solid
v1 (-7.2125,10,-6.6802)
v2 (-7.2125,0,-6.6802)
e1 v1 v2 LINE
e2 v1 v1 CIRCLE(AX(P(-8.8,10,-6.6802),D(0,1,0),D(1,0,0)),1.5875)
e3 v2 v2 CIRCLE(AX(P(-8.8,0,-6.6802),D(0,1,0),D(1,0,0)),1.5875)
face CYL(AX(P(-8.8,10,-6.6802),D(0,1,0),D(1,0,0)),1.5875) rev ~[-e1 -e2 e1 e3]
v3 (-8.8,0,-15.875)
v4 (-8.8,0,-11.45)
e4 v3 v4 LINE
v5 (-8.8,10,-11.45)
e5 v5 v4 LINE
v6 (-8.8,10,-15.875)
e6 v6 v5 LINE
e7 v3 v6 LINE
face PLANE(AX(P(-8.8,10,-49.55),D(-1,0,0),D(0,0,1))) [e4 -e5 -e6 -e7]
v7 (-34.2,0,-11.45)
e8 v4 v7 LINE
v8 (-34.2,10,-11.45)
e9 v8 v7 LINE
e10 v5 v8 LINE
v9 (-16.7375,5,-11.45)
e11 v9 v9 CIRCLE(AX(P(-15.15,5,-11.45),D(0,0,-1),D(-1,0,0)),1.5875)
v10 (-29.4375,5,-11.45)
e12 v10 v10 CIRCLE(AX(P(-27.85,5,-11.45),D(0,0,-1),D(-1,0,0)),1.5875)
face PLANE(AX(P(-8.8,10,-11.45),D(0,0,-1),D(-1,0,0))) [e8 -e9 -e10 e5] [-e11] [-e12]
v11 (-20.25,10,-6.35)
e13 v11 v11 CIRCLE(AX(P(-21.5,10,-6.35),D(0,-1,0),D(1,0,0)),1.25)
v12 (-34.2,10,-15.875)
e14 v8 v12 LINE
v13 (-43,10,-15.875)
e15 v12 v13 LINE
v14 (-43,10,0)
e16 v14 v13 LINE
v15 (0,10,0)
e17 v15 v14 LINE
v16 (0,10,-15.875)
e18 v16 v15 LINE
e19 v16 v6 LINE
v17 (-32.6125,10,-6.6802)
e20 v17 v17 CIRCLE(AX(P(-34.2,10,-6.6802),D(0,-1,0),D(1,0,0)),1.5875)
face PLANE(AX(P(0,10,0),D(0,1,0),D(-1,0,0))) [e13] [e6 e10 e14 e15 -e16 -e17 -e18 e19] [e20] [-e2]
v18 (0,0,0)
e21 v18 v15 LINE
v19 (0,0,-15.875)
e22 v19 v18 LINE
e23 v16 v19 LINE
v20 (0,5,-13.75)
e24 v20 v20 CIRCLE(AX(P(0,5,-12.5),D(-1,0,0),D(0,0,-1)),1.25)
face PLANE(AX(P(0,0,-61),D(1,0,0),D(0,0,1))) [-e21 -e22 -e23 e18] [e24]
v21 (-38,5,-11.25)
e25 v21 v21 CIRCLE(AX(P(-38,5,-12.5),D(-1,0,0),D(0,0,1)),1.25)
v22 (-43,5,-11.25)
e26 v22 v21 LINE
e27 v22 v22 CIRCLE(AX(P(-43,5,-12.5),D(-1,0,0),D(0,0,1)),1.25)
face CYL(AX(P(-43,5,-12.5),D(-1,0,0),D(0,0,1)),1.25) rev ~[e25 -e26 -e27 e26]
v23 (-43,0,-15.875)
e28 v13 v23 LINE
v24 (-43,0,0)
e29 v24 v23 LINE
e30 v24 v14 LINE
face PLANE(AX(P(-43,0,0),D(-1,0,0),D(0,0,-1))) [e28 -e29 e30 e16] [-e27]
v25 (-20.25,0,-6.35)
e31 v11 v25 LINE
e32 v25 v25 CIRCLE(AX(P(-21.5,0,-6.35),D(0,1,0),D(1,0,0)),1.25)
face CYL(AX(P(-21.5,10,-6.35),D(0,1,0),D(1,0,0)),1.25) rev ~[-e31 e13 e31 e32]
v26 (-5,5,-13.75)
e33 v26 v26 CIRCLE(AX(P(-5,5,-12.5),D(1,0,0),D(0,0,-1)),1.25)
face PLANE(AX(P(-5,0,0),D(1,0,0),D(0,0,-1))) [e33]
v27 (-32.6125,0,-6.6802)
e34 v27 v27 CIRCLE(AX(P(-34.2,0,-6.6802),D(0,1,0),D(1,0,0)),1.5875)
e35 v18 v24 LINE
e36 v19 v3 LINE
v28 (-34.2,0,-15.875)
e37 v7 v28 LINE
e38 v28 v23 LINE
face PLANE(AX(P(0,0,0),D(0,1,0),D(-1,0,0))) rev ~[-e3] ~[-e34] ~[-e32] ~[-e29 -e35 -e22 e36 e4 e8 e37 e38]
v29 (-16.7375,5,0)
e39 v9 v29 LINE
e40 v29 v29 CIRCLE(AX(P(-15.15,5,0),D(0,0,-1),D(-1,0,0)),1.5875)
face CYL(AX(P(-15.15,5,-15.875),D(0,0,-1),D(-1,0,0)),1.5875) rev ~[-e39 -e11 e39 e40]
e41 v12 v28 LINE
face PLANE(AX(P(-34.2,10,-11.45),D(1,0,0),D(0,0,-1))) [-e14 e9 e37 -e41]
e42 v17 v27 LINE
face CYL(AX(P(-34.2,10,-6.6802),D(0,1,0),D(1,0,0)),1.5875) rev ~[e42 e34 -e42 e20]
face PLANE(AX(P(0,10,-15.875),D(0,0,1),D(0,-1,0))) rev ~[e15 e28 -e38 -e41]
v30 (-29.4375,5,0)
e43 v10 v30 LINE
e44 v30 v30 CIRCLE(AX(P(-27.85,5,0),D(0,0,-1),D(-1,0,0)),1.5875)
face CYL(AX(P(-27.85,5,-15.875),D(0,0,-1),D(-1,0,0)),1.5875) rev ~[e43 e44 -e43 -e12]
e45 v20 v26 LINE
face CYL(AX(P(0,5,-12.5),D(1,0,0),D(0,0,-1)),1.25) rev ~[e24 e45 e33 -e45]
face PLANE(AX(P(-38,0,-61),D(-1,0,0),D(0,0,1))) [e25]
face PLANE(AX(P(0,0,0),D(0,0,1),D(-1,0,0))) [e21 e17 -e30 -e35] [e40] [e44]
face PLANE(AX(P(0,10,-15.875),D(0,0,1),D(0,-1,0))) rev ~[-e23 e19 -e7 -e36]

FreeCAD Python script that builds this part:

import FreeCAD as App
import Part
import Sketcher
from FreeCAD import Vector

doc = App.newDocument("Part")
body = doc.addObject("PartDesign::Body", "Body")

# Sketch on XZ plane
sketch1 = body.newObject("Sketcher::SketchObject", "Sketch")
sketch1.AttachmentSupport = (doc.getObject("XZ_Plane"), [""])
sketch1.MapMode = "FlatFace"
sketch1.addGeometry(Part.LineSegment(Vector(-43, 0, 0), Vector(0, 0, 0)), False)
sketch1.addGeometry(Part.LineSegment(Vector(0, 0, 0), Vector(0, -61, 0)), False)
sketch1.addGeometry(Part.LineSegment(Vector(0, -61, 0), Vector(-43, -61, 0)), False)
sketch1.addGeometry(Part.LineSegment(Vector(-43, -61, 0), Vector(-43, 0, 0)), False)
sketch1.addConstraint(Sketcher.Constraint("Coincident", 0, 2, 1, 1))
sketch1.addConstraint(Sketcher.Constraint("Coincident", 1, 2, 2, 1))
sketch1.addConstraint(Sketcher.Constraint("Coincident", 2, 2, 3, 1))
sketch1.addConstraint(Sketcher.Constraint("Coincident", 3, 2, 0, 1))
sketch1.addConstraint(Sketcher.Constraint("Horizontal", 0))
sketch1.addConstraint(Sketcher.Constraint("Vertical", 1))
sketch1.addConstraint(Sketcher.Constraint("Horizontal", 2))
sketch1.addConstraint(Sketcher.Constraint("Vertical", 3))
sketch1.addConstraint(Sketcher.Constraint("Coincident", 0, 2, -1, 1))
sketch1.addConstraint(Sketcher.Constraint("DistanceX", 0, 1, 0, 2, 43.0))
sketch1.addConstraint(Sketcher.Constraint("DistanceY", 1, 2, 1, 1, 61.0))
pad1 = body.newObject("PartDesign::Pad", "Pad")
pad1.Profile = sketch1
pad1.Length = 10
pad1.Reversed = True

# Sketch on YZ plane
sketch2 = body.newObject("Sketcher::SketchObject", "Sketch001")
sketch2.AttachmentSupport = (doc.getObject("YZ_Plane"), [""])
sketch2.MapMode = "FlatFace"
sketch2.addGeometry(Part.Circle(Vector(5, -12.5, 0), Vector(0, 0, 1), 1.2), False)
sketch2.addGeometry(Part.Circle(Vector(5, -48.5, 0), Vector(0, 0, 1), 1.2), False)
sketch2.addConstraint(Sketcher.Constraint("Equal", 0, 1))
sketch2.addConstraint(Sketcher.Constraint("Vertical", 0, 3, 1, 3))
sketch2.addConstraint(Sketcher.Constraint("Diameter", 0, 2.5))
sketch2.addConstraint(Sketcher.Constraint("DistanceY", 0, 3, -1, 1, 12.5))
sketch2.addConstraint(Sketcher.Constraint("DistanceX", -1, 1, 0, 3, 5.0))
sketch2.addConstraint(Sketcher.Constraint("DistanceY", 1, 3, 0, 3, 36.0))
pocket1 = body.newObject("PartDesign::Pocket", "Pocket")
pocket1.Profile = sketch2
pocket1.Length = 5

# Sketch on YZ plane
sketch3 = body.newObject("Sketcher::SketchObject", "Sketch002")
sketch3.AttachmentSupport = (doc.getObject("YZ_Plane"), [""])
sketch3.MapMode = "FlatFace"
sketch3.AttachmentOffset = App.Placement(Vector(0, 0, -43), App.Rotation())
sketch3.addGeometry(Part.Circle(Vector(5, -12.5, 0), Vector(0, 0, 1), 1.2), False)
sketch3.addGeometry(Part.Circle(Vector(5, -48.5, 0), Vector(0, 0, 1), 1.2), False)
sketch3.addConstraint(Sketcher.Constraint("Equal", 0, 1))
sketch3.addConstraint(Sketcher.Constraint("Vertical", 0, 3, 1, 3))
sketch3.addConstraint(Sketcher.Constraint("Diameter", 0, 2.5))
sketch3.addConstraint(Sketcher.Constraint("DistanceX", -1, 1, 0, 3, 5.0))
sketch3.addConstraint(Sketcher.Constraint("DistanceY", 1, 3, 0, 3, 36.0))
sketch3.addConstraint(Sketcher.Constraint("DistanceY", 0, 3, -1, 1, 12.5))
pocket2 = body.newObject("PartDesign::Pocket", "Pocket001")
pocket2.Profile = sketch3
pocket2.Length = 5
pocket2.Reversed = True

# Sketch on XZ plane
sketch4 = body.newObject("Sketcher::SketchObject", "Sketch003")
sketch4.AttachmentSupport = (doc.getObject("XZ_Plane"), [""])
sketch4.MapMode = "FlatFace"
sketch4.AttachmentOffset = App.Placement(Vector(0, 0, -10), App.Rotation())
sketch4.addGeometry(Part.Circle(Vector(-21.5, -6.3, 0), Vector(0, 0, 1), 1.2), False)
sketch4.addGeometry(Part.Circle(Vector(-21.5, -54.6, 0), Vector(0, 0, 1), 1.2), False)
sketch4.addConstraint(Sketcher.Constraint("Equal", 0, 1))
sketch4.addConstraint(Sketcher.Constraint("Vertical", 0, 3, 1, 3))
sketch4.addConstraint(Sketcher.Constraint("Diameter", 0, 2.5))
sketch4.addConstraint(Sketcher.Constraint("DistanceY", 0, 3, -1, 1, 6.35))
sketch4.addConstraint(Sketcher.Constraint("DistanceX", 0, 3, -1, 1, 21.5))
sketch4.addConstraint(Sketcher.Constraint("DistanceY", 1, 3, 0, 3, 48.3))
pocket3 = body.newObject("PartDesign::Pocket", "Pocket002")
pocket3.Profile = sketch4
pocket3.Length = 10
pocket3.Reversed = True

# Sketch on XZ plane
sketch5 = body.newObject("Sketcher::SketchObject", "Sketch004")
sketch5.AttachmentSupport = (doc.getObject("XZ_Plane"), [""])
sketch5.MapMode = "FlatFace"
sketch5.AttachmentOffset = App.Placement(Vector(0, 0, -10), App.Rotation())
sketch5.addGeometry(Part.LineSegment(Vector(-34, -11, 0), Vector(-9, -11, 0)), False)
sketch5.addGeometry(Part.LineSegment(Vector(-9, -11, 0), Vector(-9, -50, 0)), False)
sketch5.addGeometry(Part.LineSegment(Vector(-9, -50, 0), Vector(-34, -50, 0)), False)
sketch5.addGeometry(Part.LineSegment(Vector(-34, -50, 0), Vector(-34, -11, 0)), False)
sketch5.addConstraint(Sketcher.Constraint("Coincident", 0, 2, 1, 1))
sketch5.addConstraint(Sketcher.Constraint("Coincident", 1, 2, 2, 1))
sketch5.addConstraint(Sketcher.Constraint("Coincident", 2, 2, 3, 1))
sketch5.addConstraint(Sketcher.Constraint("Coincident", 3, 2, 0, 1))
sketch5.addConstraint(Sketcher.Constraint("Horizontal", 0))
sketch5.addConstraint(Sketcher.Constraint("Vertical", 1))
sketch5.addConstraint(Sketcher.Constraint("Horizontal", 2))
sketch5.addConstraint(Sketcher.Constraint("Vertical", 3))
sketch5.addConstraint(Sketcher.Constraint("DistanceX", 0, 1, 0, 2, 25.4))
sketch5.addConstraint(Sketcher.Constraint("DistanceY", 1, 2, 1, 1, 38.1))
sketch5.addConstraint(Sketcher.Constraint("DistanceX", 0, 2, -1, 1, 8.8))
sketch5.addConstraint(Sketcher.Constraint("DistanceY", 0, 2, -1, 1, 11.45))
pocket4 = body.newObject("PartDesign::Pocket", "Pocket003")
pocket4.Profile = sketch5
pocket4.Length = 10
pocket4.Reversed = True

# Sketch on YZ plane
sketch6 = body.newObject("Sketcher::SketchObject", "Sketch005")
sketch6.AttachmentSupport = (doc.getObject("YZ_Plane"), [""])
sketch6.MapMode = "FlatFace"
sketch6.addGeometry(Part.LineSegment(Vector(10, -16, 0), Vector(0, -16, 0)), False)
sketch6.addGeometry(Part.LineSegment(Vector(0, -16, 0), Vector(0, -61, 0)), False)
sketch6.addGeometry(Part.LineSegment(Vector(0, -61, 0), Vector(10, -61, 0)), False)
sketch6.addGeometry(Part.LineSegment(Vector(10, -61, 0), Vector(10, -16, 0)), False)
sketch6.addConstraint(Sketcher.Constraint("Coincident", 0, 2, 1, 1))
sketch6.addConstraint(Sketcher.Constraint("Coincident", 1, 2, 2, 1))
sketch6.addConstraint(Sketcher.Constraint("Coincident", 2, 2, 3, 1))
sketch6.addConstraint(Sketcher.Constraint("Coincident", 3, 2, 0, 1))
sketch6.addConstraint(Sketcher.Constraint("Horizontal", 0))
sketch6.addConstraint(Sketcher.Constraint("Vertical", 1))
sketch6.addConstraint(Sketcher.Constraint("Horizontal", 2))
sketch6.addConstraint(Sketcher.Constraint("Vertical", 3))
sketch6.addConstraint(Sketcher.Constraint("PointOnObject", 0, 2, -2))
sketch6.addConstraint(Sketcher.Constraint("DistanceX", 0, 2, 0, 1, 10.0))
sketch6.addConstraint(Sketcher.Constraint("DistanceY", 0, 2, -1, 1, 15.875))
sketch6.addConstraint(Sketcher.Constraint("DistanceY", 1, 2, -1, 1, 61.0))
pocket5 = body.newObject("PartDesign::Pocket", "Pocket004")
pocket5.Profile = sketch6
pocket5.Length = 43

# Sketch on XZ plane
sketch7 = body.newObject("Sketcher::SketchObject", "Sketch006")
sketch7.AttachmentSupport = (doc.getObject("XZ_Plane"), [""])
sketch7.MapMode = "FlatFace"
sketch7.AttachmentOffset = App.Placement(Vector(0, 0, -10), App.Rotation())
sketch7.addGeometry(Part.Circle(Vector(-34.2, -6.7, 0), Vector(0, 0, 1), 1.6), False)
sketch7.addGeometry(Part.Circle(Vector(-8.8, -6.7, 0), Vector(0, 0, 1), 1.6), False)
sketch7.addConstraint(Sketcher.Constraint("Equal", 0, 1))
sketch7.addConstraint(Sketcher.Constraint("Horizontal", 0, 3, 1, 3))
sketch7.addConstraint(Sketcher.Constraint("Diameter", 0, 3.175))
sketch7.addConstraint(Sketcher.Constraint("DistanceX", 0, 3, -1, 1, 34.2))
sketch7.addConstraint(Sketcher.Constraint("DistanceY", 0, 3, -1, 1, 6.6802))
sketch7.addConstraint(Sketcher.Constraint("DistanceX", 1, 3, -1, 1, 8.8))
pocket6 = body.newObject("PartDesign::Pocket", "Pocket005")
pocket6.Profile = sketch7
pocket6.Length = 25.4
pocket6.Reversed = True

# Sketch on XY plane
sketch8 = body.newObject("Sketcher::SketchObject", "Sketch007")
sketch8.AttachmentSupport = (doc.getObject("XY_Plane"), [""])
sketch8.MapMode = "FlatFace"
sketch8.AttachmentOffset = App.Placement(Vector(0, 0, -15.875), App.Rotation())
sketch8.addGeometry(Part.Circle(Vector(-27.9, 5, 0), Vector(0, 0, 1), 1.6), False)
sketch8.addGeometry(Part.Circle(Vector(-15.2, 5, 0), Vector(0, 0, 1), 1.6), False)
sketch8.addConstraint(Sketcher.Constraint("Equal", 0, 1))
sketch8.addConstraint(Sketcher.Constraint("Horizontal", 0, 3, 1, 3))
sketch8.addConstraint(Sketcher.Constraint("Diameter", 0, 3.175))
sketch8.addConstraint(Sketcher.Constraint("DistanceY", -1, 1, 0, 3, 5.0))
sketch8.addConstraint(Sketcher.Constraint("DistanceX", 0, 3, 1, 3, 12.7))
sketch8.addConstraint(Sketcher.Constraint("DistanceX", 0, 3, -1, 1, 27.85))
pocket7 = body.newObject("PartDesign::Pocket", "Pocket006")
pocket7.Profile = sketch8
pocket7.Length = 15.875
pocket7.Reversed = True

doc.recompute()
